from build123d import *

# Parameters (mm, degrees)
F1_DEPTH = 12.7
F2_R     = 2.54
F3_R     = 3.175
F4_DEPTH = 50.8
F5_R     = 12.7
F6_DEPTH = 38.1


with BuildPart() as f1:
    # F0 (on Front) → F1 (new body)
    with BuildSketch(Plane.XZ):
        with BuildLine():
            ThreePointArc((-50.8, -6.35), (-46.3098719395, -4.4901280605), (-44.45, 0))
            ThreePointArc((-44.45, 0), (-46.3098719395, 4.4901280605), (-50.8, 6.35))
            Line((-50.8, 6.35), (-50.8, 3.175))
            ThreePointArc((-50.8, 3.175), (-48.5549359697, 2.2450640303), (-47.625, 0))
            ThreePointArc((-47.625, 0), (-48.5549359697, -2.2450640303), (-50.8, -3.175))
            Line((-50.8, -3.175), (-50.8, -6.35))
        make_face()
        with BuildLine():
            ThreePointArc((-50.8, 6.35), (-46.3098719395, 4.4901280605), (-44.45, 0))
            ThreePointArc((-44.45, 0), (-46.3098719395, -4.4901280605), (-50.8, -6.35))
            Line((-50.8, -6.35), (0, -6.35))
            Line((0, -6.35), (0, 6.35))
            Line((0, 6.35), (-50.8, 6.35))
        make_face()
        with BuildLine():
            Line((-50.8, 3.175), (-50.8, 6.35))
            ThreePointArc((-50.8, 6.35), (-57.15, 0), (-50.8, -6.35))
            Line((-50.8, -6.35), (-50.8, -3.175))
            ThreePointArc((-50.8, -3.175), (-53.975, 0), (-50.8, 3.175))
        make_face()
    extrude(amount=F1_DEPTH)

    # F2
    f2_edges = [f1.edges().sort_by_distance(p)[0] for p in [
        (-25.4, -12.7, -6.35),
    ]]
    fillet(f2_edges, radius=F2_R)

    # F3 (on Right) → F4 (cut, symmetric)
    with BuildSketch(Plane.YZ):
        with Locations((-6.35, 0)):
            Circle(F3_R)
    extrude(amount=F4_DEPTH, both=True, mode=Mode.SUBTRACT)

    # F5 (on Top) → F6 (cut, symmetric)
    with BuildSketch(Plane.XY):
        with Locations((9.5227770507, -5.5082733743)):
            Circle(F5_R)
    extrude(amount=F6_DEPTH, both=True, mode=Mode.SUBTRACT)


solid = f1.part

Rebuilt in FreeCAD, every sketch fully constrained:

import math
import FreeCAD as App
import Part
import Sketcher

V = App.Vector
Q = App.Units.Quantity


def edges_at(feature, points):
    """Names of the edges that pass closest to the given points."""
    edges = feature.Shape.Edges
    near = lambda p: min(range(len(edges)), key=lambda i: edges[i].distToShape(Part.Vertex(*p))[0])
    return sorted({f"Edge{near(p) + 1}" for p in points})

doc = App.newDocument("Part")
body = doc.addObject("PartDesign::Body", "Body")

# Sketch on XZ plane
sketch1 = doc.addObject("Sketcher::SketchObject", "Sketch")
body.addObject(sketch1)
sketch1.AttachmentSupport = (doc.XZ_Plane, [""])
sketch1.MapMode = "FlatFace"
sketch1.addGeometry([
    Part.LineSegment(V(-50.8, -6.3, 0), V(0, -6.3, 0)),  # 0
    Part.LineSegment(V(0, -6.3, 0), V(0, 6.3, 0)),  # 1
    Part.LineSegment(V(0, 6.3, 0), V(-50.8, 6.3, 0)),  # 2
    Part.ArcOfCircle(Part.Circle(V(-50.8, 0, 0), V(0, 0, 1), 6.3), math.radians(90), math.radians(270)),  # 3
    Part.ArcOfCircle(Part.Circle(V(-50.8, 0, 0), V(0, 0, 1), 3.2), math.radians(0), math.radians(90)),  # 4
    Part.ArcOfCircle(Part.Circle(V(-50.8, 0, 0), V(0, 0, 1), 3.2), math.radians(-90), math.radians(0)),  # 5
    Part.ArcOfCircle(Part.Circle(V(-50.8, 0, 0), V(0, 0, 1), 3.2), math.radians(90), math.radians(270)),  # 6
], False)
sketch1.addConstraint([
    Sketcher.Constraint("Coincident", 0, 2, 1, 1),
    Sketcher.Constraint("Coincident", 1, 2, 2, 1),
    Sketcher.Constraint("Tangent", 2, 2, 3, 1),
    Sketcher.Constraint("Tangent", 3, 2, 0, 1),
    Sketcher.Constraint("Tangent", 4, 1, 5, 2),
    Sketcher.Constraint("Tangent", 5, 1, 6, 2),
    Sketcher.Constraint("Tangent", 6, 1, 4, 2),
    Sketcher.Constraint("Horizontal", 0),
    Sketcher.Constraint("Vertical", 1),
    Sketcher.Constraint("Horizontal", 2),
    Sketcher.Constraint("Coincident", 4, 3, 3, 3),
    Sketcher.Constraint("Symmetric", 0, 2, 1, 2, -1, 1),
    Sketcher.Constraint("PointOnObject", 4, 1, -1),
    Sketcher.Constraint("Vertical", 3, 2, 5, 1),
    Sketcher.Constraint("Vertical", 5, 1, 6, 1),
    Sketcher.Constraint("DistanceX", 0, 1, 0, 2, Q("2 in")),
    Sketcher.Constraint("Radius", 3, Q("0.25 in")),
    Sketcher.Constraint("Radius", 4, Q("0.125 in")),
])
pad1 = doc.addObject("PartDesign::Pad", "Pad")
body.addObject(pad1)
pad1.Profile = sketch1
pad1.Length = Q("0.5 in")
doc.recompute()

fillet = doc.addObject("PartDesign::Fillet", "Fillet")
body.addObject(fillet)
fillet.Base = (pad1, edges_at(pad1, [(-25.4, -12.7, -6.35)]))
fillet.Radius = Q("0.1 in")

# Sketch on YZ plane
sketch2 = doc.addObject("Sketcher::SketchObject", "Sketch001")
body.addObject(sketch2)
sketch2.AttachmentSupport = (doc.YZ_Plane, [""])
sketch2.MapMode = "FlatFace"
sketch2.addGeometry(Part.Circle(V(-6.3, 0, 0), V(0, 0, 1), 3.2), False)
sketch2.addConstraint([
    Sketcher.Constraint("PointOnObject", 0, 3, -1),
    Sketcher.Constraint("Diameter", 0, Q("0.25 in")),
    Sketcher.Constraint("DistanceX", 0, 3, -1, 1, Q("0.25 in")),
])
pocket1 = doc.addObject("PartDesign::Pocket", "Pocket")
body.addObject(pocket1)
pocket1.Profile = sketch2
pocket1.Length = Q("4 in")
pocket1.Midplane = True

# Sketch on XY plane
sketch3 = doc.addObject("Sketcher::SketchObject", "Sketch002")
body.addObject(sketch3)
sketch3.AttachmentSupport = (doc.XY_Plane, [""])
sketch3.MapMode = "FlatFace"
sketch3.addGeometry(Part.Circle(V(10, -6, 0), V(0, 0, 1), 13), False)
sketch3.addConstraint([
    Sketcher.Constraint("Diameter", 0, Q("1 in")),
    Sketcher.Constraint("DistanceX", -1, 1, 0, 3, Q("9.522777 mm")),
    Sketcher.Constraint("DistanceY", 0, 3, -1, 1, Q("5.508273 mm")),
])
pocket2 = doc.addObject("PartDesign::Pocket", "Pocket001")
body.addObject(pocket2)
pocket2.Profile = sketch3
pocket2.Length = Q("3 in")
pocket2.Midplane = True

doc.recompute()
